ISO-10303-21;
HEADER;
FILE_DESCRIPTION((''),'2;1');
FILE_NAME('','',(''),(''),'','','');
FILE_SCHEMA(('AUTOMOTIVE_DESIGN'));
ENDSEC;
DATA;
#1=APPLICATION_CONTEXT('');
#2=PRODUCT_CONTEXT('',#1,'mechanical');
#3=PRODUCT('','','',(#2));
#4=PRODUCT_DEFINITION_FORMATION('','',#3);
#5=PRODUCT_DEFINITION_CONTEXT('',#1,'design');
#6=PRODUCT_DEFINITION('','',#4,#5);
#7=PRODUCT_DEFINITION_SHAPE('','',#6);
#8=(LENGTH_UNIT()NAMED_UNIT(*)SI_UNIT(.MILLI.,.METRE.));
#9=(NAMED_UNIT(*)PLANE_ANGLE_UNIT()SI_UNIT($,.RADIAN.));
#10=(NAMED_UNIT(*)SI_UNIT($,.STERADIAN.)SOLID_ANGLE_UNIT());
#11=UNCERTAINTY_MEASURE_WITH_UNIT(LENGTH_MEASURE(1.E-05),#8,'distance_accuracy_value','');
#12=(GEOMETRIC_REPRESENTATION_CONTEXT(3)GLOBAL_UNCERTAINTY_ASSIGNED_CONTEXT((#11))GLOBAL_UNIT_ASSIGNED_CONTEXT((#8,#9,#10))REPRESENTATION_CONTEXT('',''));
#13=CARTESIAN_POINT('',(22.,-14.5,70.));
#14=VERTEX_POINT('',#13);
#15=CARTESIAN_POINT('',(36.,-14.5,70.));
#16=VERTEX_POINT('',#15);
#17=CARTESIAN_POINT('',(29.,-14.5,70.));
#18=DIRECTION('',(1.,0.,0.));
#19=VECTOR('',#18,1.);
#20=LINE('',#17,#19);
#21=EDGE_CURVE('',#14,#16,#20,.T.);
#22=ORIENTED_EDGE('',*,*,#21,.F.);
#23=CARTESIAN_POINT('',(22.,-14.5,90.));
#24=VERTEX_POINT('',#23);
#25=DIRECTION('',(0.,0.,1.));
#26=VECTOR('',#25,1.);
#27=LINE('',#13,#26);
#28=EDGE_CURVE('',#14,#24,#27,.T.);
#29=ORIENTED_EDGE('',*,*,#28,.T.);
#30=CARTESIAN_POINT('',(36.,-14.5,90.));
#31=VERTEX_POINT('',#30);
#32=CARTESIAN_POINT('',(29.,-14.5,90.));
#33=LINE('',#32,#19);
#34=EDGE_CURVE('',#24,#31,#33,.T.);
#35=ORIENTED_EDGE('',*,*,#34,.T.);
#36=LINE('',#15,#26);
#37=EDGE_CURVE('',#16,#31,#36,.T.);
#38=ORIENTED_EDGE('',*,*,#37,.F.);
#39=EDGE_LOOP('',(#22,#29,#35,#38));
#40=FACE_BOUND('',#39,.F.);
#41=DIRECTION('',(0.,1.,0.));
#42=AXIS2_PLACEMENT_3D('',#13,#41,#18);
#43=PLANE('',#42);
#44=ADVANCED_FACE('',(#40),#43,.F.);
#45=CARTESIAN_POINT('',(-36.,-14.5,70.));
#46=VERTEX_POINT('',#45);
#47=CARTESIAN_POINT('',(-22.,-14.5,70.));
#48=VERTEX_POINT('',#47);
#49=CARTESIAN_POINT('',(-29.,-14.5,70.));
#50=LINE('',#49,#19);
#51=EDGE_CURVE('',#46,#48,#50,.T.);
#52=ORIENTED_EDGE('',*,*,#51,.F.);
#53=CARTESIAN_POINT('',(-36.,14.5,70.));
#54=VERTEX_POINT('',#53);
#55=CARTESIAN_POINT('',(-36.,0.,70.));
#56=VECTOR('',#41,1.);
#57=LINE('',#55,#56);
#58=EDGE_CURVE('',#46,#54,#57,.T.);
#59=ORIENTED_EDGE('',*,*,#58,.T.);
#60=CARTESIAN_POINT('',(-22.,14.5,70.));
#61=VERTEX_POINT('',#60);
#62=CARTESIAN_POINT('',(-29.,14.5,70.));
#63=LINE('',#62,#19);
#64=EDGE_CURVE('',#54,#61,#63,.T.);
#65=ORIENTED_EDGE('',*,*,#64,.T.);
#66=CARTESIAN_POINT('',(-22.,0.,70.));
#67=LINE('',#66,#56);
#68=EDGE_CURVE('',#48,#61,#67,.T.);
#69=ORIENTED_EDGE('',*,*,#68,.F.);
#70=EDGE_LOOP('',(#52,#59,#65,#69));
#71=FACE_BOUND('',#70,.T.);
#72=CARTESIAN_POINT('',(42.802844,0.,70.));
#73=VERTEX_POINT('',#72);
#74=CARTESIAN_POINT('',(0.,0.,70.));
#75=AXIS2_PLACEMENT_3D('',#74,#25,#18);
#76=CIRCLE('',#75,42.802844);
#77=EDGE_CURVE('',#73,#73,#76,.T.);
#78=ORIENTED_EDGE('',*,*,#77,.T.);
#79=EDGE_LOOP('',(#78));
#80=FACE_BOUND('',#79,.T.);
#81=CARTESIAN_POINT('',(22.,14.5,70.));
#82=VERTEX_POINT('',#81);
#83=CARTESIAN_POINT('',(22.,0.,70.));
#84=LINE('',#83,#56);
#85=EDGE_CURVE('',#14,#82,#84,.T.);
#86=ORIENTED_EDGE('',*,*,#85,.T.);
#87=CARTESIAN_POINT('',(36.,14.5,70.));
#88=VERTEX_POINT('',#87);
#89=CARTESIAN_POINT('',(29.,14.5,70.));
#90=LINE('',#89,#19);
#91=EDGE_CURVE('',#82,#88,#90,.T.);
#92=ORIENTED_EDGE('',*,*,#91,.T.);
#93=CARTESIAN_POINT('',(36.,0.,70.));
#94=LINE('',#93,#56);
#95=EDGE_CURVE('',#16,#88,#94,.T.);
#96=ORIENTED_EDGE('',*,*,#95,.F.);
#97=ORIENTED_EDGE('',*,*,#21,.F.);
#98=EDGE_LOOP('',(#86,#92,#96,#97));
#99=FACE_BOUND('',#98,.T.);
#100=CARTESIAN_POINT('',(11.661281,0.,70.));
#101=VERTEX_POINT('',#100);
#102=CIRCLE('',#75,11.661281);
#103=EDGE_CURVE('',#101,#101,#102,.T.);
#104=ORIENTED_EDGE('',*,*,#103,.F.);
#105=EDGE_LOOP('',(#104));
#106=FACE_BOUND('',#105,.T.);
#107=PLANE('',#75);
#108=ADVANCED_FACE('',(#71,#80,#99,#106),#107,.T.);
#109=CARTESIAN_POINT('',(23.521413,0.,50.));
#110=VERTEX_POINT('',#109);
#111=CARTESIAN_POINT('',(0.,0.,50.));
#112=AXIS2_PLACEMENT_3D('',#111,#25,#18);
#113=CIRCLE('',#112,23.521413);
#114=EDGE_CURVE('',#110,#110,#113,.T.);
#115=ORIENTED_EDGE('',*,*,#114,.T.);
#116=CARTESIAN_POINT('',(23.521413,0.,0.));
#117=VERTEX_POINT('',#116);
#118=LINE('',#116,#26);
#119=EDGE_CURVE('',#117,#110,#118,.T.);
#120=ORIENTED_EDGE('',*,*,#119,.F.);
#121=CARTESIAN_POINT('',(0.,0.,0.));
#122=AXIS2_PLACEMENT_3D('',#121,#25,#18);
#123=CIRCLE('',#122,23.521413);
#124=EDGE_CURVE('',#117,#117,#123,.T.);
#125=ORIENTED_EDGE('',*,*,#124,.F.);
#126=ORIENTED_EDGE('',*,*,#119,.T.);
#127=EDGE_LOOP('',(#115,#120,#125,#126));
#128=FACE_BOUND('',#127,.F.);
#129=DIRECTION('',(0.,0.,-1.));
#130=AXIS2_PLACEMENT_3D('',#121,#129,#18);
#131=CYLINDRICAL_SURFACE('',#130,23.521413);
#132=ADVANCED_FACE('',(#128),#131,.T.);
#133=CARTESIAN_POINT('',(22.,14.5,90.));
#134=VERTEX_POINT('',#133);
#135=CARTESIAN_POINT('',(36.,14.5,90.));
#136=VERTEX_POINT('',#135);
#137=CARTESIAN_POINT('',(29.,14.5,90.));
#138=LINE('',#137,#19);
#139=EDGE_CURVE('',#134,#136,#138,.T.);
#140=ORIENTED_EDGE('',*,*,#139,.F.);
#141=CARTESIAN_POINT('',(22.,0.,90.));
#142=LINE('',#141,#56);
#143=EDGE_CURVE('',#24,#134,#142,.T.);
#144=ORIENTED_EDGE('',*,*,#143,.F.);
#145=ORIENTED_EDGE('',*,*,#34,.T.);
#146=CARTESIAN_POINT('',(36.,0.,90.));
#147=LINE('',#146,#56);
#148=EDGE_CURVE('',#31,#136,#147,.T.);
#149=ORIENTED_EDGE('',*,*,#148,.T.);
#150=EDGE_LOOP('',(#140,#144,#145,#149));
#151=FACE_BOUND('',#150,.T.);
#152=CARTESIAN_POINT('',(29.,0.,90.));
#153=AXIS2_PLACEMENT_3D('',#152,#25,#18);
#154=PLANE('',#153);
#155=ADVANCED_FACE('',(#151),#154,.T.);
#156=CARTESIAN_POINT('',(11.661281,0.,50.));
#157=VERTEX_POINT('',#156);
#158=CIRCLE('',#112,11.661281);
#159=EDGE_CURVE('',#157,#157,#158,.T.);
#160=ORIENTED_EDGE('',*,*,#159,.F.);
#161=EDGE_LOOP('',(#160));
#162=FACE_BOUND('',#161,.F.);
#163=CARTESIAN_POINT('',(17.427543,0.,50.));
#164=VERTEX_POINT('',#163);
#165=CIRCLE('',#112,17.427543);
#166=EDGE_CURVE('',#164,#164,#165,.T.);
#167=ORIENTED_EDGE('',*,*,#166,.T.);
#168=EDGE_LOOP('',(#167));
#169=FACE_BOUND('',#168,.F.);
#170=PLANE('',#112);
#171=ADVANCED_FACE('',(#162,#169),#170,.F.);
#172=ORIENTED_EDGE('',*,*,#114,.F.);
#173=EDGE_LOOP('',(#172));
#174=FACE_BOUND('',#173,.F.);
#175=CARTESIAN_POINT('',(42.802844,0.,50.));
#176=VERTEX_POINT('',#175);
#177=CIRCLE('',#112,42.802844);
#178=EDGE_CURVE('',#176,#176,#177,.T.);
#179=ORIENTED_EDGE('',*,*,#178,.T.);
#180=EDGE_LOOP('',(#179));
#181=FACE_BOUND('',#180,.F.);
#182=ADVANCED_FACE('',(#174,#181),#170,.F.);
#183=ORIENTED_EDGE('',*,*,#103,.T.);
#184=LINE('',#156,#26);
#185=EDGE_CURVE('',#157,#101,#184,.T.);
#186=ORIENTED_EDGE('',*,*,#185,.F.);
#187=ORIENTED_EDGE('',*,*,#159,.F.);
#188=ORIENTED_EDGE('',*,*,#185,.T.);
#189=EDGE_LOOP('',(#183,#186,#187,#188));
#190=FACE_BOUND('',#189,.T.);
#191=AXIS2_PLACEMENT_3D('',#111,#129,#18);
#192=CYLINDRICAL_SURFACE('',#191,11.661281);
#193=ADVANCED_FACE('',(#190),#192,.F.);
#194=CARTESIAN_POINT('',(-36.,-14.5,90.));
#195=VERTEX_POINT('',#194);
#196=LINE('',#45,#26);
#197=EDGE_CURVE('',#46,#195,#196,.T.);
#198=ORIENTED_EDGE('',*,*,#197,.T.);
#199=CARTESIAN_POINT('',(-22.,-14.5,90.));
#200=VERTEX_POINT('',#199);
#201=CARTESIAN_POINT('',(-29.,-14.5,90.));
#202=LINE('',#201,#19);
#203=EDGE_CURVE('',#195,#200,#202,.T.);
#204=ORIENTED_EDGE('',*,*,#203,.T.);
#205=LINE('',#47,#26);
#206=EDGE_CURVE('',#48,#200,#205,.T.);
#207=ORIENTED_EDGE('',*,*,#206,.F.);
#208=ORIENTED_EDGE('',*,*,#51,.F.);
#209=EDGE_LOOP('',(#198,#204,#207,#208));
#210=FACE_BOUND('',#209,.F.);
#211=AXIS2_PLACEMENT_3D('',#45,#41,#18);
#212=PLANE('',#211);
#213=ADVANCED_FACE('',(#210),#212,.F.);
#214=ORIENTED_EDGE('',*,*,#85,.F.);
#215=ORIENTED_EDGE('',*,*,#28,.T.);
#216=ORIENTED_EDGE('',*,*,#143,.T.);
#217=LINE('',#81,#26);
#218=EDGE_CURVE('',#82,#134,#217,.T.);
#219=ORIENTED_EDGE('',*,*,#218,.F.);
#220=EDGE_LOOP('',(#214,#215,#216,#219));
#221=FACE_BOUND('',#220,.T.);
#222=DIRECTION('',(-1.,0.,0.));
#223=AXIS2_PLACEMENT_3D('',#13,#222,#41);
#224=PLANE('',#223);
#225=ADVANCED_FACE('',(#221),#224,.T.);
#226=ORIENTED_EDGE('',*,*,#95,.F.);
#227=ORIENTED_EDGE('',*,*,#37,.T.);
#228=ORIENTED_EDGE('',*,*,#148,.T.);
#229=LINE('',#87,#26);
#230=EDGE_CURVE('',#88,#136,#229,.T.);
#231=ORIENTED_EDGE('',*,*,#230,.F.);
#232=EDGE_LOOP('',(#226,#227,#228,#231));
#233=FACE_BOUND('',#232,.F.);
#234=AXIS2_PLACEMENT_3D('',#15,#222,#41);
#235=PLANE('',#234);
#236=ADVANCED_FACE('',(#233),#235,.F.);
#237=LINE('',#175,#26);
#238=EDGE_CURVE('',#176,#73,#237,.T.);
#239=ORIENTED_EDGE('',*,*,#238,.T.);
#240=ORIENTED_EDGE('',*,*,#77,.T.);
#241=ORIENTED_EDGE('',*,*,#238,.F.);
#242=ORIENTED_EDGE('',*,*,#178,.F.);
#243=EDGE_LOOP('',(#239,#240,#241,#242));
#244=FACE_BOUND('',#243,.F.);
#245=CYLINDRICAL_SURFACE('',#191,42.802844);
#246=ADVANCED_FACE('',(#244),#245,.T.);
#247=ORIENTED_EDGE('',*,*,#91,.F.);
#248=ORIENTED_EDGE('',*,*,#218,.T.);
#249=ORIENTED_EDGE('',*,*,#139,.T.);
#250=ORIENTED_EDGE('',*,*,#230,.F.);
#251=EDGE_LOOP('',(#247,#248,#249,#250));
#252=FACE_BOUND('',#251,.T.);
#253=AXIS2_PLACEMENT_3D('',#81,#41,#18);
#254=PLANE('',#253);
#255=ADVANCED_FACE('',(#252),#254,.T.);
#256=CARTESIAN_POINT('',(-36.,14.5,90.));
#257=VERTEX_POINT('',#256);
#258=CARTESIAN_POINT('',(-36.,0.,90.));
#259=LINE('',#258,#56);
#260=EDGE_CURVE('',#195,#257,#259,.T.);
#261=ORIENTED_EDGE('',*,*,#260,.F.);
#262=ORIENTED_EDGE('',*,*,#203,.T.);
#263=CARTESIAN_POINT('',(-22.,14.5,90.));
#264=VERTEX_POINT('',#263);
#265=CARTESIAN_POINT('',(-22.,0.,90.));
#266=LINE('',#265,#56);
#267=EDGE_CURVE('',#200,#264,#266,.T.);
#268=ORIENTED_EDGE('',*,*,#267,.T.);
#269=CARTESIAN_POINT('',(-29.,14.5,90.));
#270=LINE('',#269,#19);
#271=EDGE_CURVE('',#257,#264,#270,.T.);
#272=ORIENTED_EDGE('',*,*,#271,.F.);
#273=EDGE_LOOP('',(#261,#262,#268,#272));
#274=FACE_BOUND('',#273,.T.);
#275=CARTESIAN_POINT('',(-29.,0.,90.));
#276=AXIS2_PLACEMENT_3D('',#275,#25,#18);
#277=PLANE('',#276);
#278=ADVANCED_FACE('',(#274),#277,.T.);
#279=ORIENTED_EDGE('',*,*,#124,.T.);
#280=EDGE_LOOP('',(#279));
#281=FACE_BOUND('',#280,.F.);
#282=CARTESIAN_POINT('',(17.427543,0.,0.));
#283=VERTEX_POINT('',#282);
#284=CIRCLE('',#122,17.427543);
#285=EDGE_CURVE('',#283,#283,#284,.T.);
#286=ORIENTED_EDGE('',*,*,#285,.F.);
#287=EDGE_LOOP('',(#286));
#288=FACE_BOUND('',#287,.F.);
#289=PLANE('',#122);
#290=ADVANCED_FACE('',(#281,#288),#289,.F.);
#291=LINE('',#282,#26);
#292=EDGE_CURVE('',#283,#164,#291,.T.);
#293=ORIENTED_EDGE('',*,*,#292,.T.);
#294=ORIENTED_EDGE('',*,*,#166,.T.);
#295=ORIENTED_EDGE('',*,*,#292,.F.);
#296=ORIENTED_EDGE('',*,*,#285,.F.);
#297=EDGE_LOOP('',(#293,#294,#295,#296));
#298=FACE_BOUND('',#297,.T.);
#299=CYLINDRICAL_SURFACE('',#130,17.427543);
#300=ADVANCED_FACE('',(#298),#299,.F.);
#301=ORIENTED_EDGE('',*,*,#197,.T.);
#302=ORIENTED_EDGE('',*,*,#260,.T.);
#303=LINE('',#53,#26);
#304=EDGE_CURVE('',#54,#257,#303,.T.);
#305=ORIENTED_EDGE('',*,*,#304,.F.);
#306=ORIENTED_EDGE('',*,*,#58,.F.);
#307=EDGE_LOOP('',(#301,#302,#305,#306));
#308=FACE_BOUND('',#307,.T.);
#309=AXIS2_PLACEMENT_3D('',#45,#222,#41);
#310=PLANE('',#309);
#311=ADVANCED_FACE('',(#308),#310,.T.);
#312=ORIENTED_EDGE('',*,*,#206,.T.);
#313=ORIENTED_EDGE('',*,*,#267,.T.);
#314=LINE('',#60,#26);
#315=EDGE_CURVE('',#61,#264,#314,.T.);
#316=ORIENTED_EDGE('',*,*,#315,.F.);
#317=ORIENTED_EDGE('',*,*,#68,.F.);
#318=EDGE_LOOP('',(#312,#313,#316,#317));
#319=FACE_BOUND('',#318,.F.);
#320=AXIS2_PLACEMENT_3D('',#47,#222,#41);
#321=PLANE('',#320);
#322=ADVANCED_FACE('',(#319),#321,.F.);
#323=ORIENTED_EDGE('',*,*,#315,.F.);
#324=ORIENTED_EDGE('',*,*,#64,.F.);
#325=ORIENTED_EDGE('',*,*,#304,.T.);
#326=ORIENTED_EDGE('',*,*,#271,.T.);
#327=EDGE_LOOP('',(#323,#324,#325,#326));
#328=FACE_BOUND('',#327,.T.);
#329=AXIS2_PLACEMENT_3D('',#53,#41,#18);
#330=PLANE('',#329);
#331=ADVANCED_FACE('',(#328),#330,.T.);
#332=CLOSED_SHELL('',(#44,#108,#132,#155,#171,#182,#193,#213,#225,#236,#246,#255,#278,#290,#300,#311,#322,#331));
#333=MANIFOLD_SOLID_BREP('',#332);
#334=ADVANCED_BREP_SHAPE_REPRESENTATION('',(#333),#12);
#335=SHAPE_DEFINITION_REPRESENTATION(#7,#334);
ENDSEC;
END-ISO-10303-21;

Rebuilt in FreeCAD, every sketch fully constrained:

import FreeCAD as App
import Part
import Sketcher

doc = App.newDocument("Part")
body = doc.addObject("PartDesign::Body", "Body")

sketch1 = doc.addObject("Sketcher::SketchObject", "Sketch")
body.addObject(sketch1)
sketch1.AttachmentSupport = (doc.XY_Plane, [""])
sketch1.MapMode = "FlatFace"
sketch1.addGeometry([
    Part.Circle(App.Vector(0, 0, 0), App.Vector(0, 0, 1), 24),
    Part.Circle(App.Vector(0, 0, 0), App.Vector(0, 0, 1), 17),
], False)
sketch1.addConstraint([
    Sketcher.Constraint("Coincident", 0, 3, -1, 1),
    Sketcher.Constraint("Coincident", 1, 3, -1, 1),
    Sketcher.Constraint("Diameter", 0, 47.042826),
    Sketcher.Constraint("Diameter", 1, 34.855086),
])
pad1 = doc.addObject("PartDesign::Pad", "Pad")
body.addObject(pad1)
pad1.Profile = sketch1
pad1.Length = 50

sketch2 = doc.addObject("Sketcher::SketchObject", "Sketch001")
body.addObject(sketch2)
sketch2.AttachmentSupport = (doc.XY_Plane, [""])
sketch2.MapMode = "FlatFace"
sketch2.AttachmentOffset = App.Placement(App.Vector(0, 0, 50), App.Rotation())
sketch2.addGeometry([
    Part.Circle(App.Vector(0, 0, 0), App.Vector(0, 0, 1), 43),
    Part.Circle(App.Vector(0, 0, 0), App.Vector(0, 0, 1), 12),
], False)
sketch2.addConstraint([
    Sketcher.Constraint("Coincident", 0, 3, -1, 1),
    Sketcher.Constraint("Coincident", 1, 3, -1, 1),
    Sketcher.Constraint("Diameter", 0, 85.605688),
    Sketcher.Constraint("Diameter", 1, 23.322562),
])
pad2 = doc.addObject("PartDesign::Pad", "Pad001")
body.addObject(pad2)
pad2.Profile = sketch2
pad2.Length = 20

sketch3 = doc.addObject("Sketcher::SketchObject", "Sketch002")
body.addObject(sketch3)
sketch3.AttachmentSupport = (doc.XY_Plane, [""])
sketch3.MapMode = "FlatFace"
sketch3.AttachmentOffset = App.Placement(App.Vector(0, 0, 70), App.Rotation())
sketch3.addGeometry([
    Part.LineSegment(App.Vector(-36, 14, 0), App.Vector(-36, -14, 0)),
    Part.LineSegment(App.Vector(-36, -14, 0), App.Vector(-22, -14, 0)),
    Part.LineSegment(App.Vector(-22, -14, 0), App.Vector(-22, 14, 0)),
    Part.LineSegment(App.Vector(-22, 14, 0), App.Vector(-36, 14, 0)),
    Part.LineSegment(App.Vector(22, 14, 0), App.Vector(22, -14, 0)),
    Part.LineSegment(App.Vector(22, -14, 0), App.Vector(36, -14, 0)),
    Part.LineSegment(App.Vector(36, -14, 0), App.Vector(36, 14, 0)),
    Part.LineSegment(App.Vector(36, 14, 0), App.Vector(22, 14, 0)),
], False)
sketch3.addConstraint([
    Sketcher.Constraint("Coincident", 0, 2, 1, 1),
    Sketcher.Constraint("Coincident", 1, 2, 2, 1),
    Sketcher.Constraint("Coincident", 2, 2, 3, 1),
    Sketcher.Constraint("Coincident", 3, 2, 0, 1),
    Sketcher.Constraint("Coincident", 4, 2, 5, 1),
    Sketcher.Constraint("Coincident", 5, 2, 6, 1),
    Sketcher.Constraint("Coincident", 6, 2, 7, 1),
    Sketcher.Constraint("Coincident", 7, 2, 4, 1),
    Sketcher.Constraint("Vertical", 0),
    Sketcher.Constraint("Horizontal", 1),
    Sketcher.Constraint("Vertical", 2),
    Sketcher.Constraint("Horizontal", 3),
    Sketcher.Constraint("Vertical", 4),
    Sketcher.Constraint("Horizontal", 5),
    Sketcher.Constraint("Vertical", 6),
    Sketcher.Constraint("Horizontal", 7),
    Sketcher.Constraint("Symmetric", 2, 2, 4, 2, -1, 1),
    Sketcher.Constraint("Symmetric", 0, 2, 6, 2, -1, 1),
    Sketcher.Constraint("Horizontal", 1, 2, 4, 2),
    Sketcher.Constraint("DistanceX", 1, 1, 1, 2, 14.0),
    Sketcher.Constraint("DistanceY", 0, 2, 0, 1, 29.0),
    Sketcher.Constraint("DistanceX", 0, 2, -1, 1, 36.0),
])
pad3 = doc.addObject("PartDesign::Pad", "Pad002")
body.addObject(pad3)
pad3.Profile = sketch3
pad3.Length = 20

doc.recompute()
